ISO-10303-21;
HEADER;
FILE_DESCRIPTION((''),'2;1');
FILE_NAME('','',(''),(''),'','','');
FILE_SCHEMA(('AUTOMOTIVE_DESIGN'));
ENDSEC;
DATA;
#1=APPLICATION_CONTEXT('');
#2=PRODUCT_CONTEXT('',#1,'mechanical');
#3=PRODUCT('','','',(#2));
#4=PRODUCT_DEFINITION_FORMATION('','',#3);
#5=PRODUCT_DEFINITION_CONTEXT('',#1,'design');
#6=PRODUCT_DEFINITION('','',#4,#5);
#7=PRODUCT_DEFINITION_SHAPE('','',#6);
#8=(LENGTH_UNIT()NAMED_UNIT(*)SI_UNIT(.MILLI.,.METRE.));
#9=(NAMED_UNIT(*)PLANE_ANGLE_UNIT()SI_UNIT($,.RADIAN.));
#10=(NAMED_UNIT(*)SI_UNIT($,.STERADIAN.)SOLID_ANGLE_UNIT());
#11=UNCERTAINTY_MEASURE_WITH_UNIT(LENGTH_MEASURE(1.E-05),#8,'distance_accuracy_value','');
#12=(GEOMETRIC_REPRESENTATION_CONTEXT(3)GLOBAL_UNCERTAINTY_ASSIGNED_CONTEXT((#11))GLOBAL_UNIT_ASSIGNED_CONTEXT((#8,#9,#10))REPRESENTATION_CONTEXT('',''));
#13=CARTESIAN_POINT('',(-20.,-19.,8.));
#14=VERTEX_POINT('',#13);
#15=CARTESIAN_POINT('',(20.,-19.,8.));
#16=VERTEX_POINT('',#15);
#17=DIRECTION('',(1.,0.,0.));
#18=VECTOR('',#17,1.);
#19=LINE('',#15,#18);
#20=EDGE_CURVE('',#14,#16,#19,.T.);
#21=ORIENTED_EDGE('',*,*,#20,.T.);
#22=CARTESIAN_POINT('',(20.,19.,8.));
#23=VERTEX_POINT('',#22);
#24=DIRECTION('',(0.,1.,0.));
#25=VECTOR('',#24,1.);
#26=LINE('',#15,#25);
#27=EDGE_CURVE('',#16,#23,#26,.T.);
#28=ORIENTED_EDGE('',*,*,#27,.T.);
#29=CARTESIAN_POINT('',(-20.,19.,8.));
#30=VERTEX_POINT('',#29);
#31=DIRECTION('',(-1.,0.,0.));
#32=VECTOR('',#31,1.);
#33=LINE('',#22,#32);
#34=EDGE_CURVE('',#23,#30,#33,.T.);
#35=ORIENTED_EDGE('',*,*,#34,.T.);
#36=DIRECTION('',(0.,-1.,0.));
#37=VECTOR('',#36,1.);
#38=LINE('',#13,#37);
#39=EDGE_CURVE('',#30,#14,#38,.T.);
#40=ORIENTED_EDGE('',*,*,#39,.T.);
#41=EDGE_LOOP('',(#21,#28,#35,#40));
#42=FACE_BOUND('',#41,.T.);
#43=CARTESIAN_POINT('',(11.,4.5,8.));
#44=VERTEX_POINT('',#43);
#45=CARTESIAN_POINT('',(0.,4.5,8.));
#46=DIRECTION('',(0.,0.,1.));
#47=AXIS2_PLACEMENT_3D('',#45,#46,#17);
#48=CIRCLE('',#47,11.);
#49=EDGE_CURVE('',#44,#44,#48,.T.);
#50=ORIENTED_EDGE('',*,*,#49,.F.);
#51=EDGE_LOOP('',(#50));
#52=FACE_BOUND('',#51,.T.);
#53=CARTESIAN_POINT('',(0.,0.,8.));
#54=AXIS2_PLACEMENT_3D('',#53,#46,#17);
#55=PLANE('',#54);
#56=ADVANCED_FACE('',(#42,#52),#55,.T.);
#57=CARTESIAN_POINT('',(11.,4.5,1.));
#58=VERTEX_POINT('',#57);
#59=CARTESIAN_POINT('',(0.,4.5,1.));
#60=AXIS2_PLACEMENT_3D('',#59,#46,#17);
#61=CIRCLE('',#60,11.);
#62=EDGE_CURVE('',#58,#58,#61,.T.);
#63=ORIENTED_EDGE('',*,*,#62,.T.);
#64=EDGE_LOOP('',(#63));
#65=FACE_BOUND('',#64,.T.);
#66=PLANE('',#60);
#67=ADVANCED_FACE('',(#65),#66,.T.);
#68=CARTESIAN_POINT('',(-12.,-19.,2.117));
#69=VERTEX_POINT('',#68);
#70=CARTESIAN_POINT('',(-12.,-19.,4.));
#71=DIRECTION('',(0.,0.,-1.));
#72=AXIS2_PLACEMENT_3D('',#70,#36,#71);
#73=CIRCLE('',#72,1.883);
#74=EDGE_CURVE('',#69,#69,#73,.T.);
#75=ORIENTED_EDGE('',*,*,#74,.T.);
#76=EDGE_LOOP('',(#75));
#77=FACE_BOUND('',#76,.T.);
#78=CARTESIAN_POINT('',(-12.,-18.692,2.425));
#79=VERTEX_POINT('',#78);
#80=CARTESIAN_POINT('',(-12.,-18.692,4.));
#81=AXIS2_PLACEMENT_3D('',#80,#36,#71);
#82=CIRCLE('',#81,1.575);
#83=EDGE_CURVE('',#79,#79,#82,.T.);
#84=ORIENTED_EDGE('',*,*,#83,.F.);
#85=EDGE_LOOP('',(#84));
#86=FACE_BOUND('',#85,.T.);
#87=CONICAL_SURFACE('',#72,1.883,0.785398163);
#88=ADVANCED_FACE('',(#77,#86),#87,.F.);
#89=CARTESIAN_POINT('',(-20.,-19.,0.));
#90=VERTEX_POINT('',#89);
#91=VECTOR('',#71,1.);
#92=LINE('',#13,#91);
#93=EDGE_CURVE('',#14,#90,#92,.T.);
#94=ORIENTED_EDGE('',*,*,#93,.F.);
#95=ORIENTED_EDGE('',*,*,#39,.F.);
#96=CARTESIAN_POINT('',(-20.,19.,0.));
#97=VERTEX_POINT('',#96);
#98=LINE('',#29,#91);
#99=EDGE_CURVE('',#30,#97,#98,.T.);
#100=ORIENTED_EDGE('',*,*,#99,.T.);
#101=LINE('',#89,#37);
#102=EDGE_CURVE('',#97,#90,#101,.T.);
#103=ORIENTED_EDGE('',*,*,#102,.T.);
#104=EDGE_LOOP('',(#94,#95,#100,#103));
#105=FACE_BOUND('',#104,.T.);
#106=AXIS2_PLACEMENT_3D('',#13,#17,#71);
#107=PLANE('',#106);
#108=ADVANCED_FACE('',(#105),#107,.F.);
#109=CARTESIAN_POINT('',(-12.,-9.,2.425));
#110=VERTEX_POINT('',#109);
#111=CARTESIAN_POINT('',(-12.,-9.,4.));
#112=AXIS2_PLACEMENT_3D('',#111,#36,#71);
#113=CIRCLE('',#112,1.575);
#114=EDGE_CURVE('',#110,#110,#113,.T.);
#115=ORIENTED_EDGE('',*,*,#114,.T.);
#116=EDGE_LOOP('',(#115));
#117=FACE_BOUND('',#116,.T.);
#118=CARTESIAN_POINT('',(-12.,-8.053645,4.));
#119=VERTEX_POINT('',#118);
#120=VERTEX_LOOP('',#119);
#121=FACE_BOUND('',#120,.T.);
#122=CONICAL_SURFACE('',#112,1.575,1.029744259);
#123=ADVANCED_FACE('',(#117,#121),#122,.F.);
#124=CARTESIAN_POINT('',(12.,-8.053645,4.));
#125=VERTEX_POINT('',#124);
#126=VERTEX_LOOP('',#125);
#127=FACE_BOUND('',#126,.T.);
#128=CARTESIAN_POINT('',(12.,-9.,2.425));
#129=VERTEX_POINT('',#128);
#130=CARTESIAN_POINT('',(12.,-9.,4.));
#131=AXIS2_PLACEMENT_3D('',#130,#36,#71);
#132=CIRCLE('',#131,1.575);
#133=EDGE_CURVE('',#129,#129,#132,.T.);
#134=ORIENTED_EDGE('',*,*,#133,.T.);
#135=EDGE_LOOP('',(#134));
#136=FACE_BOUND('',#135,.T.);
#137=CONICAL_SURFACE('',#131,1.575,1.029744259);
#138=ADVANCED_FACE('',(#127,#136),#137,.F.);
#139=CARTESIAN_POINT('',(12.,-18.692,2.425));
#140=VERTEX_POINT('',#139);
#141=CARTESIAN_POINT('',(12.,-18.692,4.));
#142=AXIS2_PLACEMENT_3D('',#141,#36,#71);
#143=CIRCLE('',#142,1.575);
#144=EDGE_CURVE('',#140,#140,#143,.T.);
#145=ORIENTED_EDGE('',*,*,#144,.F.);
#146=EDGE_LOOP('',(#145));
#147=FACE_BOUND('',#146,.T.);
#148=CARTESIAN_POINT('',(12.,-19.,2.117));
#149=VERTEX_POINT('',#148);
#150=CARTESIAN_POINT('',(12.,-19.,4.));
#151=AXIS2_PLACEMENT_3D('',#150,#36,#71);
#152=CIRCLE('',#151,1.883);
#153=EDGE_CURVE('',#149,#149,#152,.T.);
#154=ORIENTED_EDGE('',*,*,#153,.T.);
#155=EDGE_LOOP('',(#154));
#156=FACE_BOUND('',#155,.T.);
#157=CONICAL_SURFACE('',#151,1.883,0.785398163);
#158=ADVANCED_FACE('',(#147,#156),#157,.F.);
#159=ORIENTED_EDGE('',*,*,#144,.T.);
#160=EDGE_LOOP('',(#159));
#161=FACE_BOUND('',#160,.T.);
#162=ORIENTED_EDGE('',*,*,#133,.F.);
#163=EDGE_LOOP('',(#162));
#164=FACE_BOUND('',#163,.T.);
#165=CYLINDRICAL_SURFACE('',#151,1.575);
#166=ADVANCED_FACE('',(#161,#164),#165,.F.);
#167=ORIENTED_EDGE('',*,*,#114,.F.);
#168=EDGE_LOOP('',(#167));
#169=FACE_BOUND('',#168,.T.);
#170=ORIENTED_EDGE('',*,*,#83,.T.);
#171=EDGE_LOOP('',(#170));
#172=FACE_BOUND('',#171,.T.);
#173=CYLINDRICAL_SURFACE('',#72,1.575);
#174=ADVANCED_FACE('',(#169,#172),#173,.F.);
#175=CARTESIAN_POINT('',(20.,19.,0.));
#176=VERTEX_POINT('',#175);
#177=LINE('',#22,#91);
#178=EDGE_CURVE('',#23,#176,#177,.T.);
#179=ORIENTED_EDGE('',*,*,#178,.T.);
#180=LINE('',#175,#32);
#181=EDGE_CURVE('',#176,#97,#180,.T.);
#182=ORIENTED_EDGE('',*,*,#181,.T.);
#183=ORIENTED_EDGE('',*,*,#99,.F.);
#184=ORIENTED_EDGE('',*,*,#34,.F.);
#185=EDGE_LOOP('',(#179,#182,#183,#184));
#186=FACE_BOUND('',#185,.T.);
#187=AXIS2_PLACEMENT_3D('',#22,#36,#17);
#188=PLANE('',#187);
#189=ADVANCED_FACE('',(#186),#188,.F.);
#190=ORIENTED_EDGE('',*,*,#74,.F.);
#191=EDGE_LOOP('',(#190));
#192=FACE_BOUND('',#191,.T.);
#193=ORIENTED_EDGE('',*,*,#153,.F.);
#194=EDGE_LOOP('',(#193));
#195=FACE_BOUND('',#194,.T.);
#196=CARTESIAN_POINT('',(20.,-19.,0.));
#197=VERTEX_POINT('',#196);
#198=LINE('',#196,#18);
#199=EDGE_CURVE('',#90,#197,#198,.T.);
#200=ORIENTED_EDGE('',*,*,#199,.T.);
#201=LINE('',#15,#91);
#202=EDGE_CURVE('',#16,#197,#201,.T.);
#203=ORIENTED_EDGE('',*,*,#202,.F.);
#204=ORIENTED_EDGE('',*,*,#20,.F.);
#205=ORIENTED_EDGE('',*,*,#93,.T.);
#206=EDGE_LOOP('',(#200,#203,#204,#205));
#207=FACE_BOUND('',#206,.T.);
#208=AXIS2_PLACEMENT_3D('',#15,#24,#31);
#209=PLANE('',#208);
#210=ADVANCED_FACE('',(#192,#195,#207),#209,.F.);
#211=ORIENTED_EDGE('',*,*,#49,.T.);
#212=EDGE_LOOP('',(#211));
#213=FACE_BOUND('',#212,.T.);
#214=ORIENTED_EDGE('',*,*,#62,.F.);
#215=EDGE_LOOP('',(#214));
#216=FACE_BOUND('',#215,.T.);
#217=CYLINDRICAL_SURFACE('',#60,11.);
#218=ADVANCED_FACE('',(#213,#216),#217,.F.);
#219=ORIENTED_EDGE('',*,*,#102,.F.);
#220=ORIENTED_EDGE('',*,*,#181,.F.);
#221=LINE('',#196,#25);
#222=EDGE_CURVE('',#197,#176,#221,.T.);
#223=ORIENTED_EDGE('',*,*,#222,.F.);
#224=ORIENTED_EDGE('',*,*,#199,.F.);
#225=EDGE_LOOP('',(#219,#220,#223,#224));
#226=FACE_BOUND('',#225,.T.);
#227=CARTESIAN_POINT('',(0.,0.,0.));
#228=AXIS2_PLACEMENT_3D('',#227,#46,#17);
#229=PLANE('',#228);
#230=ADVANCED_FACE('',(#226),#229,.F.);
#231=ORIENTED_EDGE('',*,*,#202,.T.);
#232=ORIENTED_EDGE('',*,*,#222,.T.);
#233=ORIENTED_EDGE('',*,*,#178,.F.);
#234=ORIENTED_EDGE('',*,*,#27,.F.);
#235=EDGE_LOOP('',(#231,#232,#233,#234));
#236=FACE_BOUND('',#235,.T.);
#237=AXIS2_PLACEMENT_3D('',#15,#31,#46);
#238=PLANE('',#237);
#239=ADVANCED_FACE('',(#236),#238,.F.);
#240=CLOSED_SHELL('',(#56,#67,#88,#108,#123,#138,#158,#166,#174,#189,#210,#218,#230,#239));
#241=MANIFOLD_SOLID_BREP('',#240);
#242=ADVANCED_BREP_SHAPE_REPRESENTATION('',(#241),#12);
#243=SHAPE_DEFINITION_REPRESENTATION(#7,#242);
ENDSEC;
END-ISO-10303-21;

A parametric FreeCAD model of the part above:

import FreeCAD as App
import Part
import Sketcher
from FreeCAD import Vector
Q = App.Units.Quantity

doc = App.newDocument("Part")
body = doc.addObject("PartDesign::Body", "Body")

sketch1 = body.newObject("Sketcher::SketchObject", "Sketch")
sketch1.AttachmentSupport = (doc.getObject("XY_Plane"), [""])
sketch1.MapMode = "FlatFace"
sketch1.addGeometry(Part.LineSegment(Vector(-20, 19, 0), Vector(-20, -19, 0)), False)
sketch1.addGeometry(Part.LineSegment(Vector(-20, -19, 0), Vector(20, -19, 0)), False)
sketch1.addGeometry(Part.LineSegment(Vector(20, -19, 0), Vector(20, 19, 0)), False)
sketch1.addGeometry(Part.LineSegment(Vector(20, 19, 0), Vector(-20, 19, 0)), False)
sketch1.addConstraint(Sketcher.Constraint("Coincident", 0, 2, 1, 1))
sketch1.addConstraint(Sketcher.Constraint("Coincident", 1, 2, 2, 1))
sketch1.addConstraint(Sketcher.Constraint("Coincident", 2, 2, 3, 1))
sketch1.addConstraint(Sketcher.Constraint("Coincident", 3, 2, 0, 1))
sketch1.addConstraint(Sketcher.Constraint("Vertical", 0))
sketch1.addConstraint(Sketcher.Constraint("Horizontal", 1))
sketch1.addConstraint(Sketcher.Constraint("Vertical", 2))
sketch1.addConstraint(Sketcher.Constraint("Horizontal", 3))
sketch1.addConstraint(Sketcher.Constraint("Symmetric", 0, 2, 2, 2, -1, 1))
sketch1.addConstraint(Sketcher.Constraint("DistanceX", 1, 1, 1, 2, Q("40 mm")))
sketch1.addConstraint(Sketcher.Constraint("DistanceY", 0, 2, 0, 1, Q("38 mm")))
pad1 = body.newObject("PartDesign::Pad", "Pad")
pad1.Profile = sketch1
pad1.Length = 8

sketch2 = body.newObject("Sketcher::SketchObject", "Sketch001")
sketch2.AttachmentSupport = (doc.getObject("XY_Plane"), [""])
sketch2.MapMode = "FlatFace"
sketch2.AttachmentOffset = App.Placement(Vector(0, 0, 8), App.Rotation())
sketch2.addGeometry(Part.Circle(Vector(0, 4, 0), Vector(0, 0, 1), 11), False)
sketch2.addConstraint(Sketcher.Constraint("PointOnObject", 0, 3, -2))
sketch2.addConstraint(Sketcher.Constraint("Diameter", 0, Q("22 mm")))
sketch2.addConstraint(Sketcher.Constraint("DistanceY", -1, 1, 0, 3, Q("4.5 mm")))
pocket1 = body.newObject("PartDesign::Pocket", "Pocket")
pocket1.Profile = sketch2
pocket1.Length = 7

sketch3 = body.newObject("Sketcher::SketchObject", "Sketch002")
sketch3.AttachmentSupport = (doc.getObject("XZ_Plane"), [""])
sketch3.MapMode = "FlatFace"
sketch3.AttachmentOffset = App.Placement(Vector(0, 0, 19), App.Rotation())
sketch3.addGeometry(Part.Circle(Vector(12, 4, 0), Vector(0, 0, 1), 1.6), False)
sketch3.addGeometry(Part.Circle(Vector(-12, 4, 0), Vector(0, 0, 1), 1.6), False)
sketch3.addConstraint(Sketcher.Constraint("Equal", 0, 1))
sketch3.addConstraint(Sketcher.Constraint("Symmetric", 0, 3, 1, 3, -2))
sketch3.addConstraint(Sketcher.Constraint("Diameter", 0, Q("3.15 mm")))
sketch3.addConstraint(Sketcher.Constraint("DistanceX", -1, 1, 0, 3, Q("12 mm")))
sketch3.addConstraint(Sketcher.Constraint("DistanceY", -1, 1, 0, 3, Q("4 mm")))
doc.recompute()
hole = body.newObject("PartDesign::Hole", "Hole")
hole.Profile = sketch3
hole.ThreadType = "None"
hole.Diameter = 3.15
hole.DepthType = "Dimension"
hole.Depth = 10
hole.DrillPoint = "Angled"
hole.DrillPointAngle = 118
hole.HoleCutType = "Countersink"
hole.HoleCutDiameter = 3.766
hole.HoleCutCountersinkAngle = 90

doc.recompute()
